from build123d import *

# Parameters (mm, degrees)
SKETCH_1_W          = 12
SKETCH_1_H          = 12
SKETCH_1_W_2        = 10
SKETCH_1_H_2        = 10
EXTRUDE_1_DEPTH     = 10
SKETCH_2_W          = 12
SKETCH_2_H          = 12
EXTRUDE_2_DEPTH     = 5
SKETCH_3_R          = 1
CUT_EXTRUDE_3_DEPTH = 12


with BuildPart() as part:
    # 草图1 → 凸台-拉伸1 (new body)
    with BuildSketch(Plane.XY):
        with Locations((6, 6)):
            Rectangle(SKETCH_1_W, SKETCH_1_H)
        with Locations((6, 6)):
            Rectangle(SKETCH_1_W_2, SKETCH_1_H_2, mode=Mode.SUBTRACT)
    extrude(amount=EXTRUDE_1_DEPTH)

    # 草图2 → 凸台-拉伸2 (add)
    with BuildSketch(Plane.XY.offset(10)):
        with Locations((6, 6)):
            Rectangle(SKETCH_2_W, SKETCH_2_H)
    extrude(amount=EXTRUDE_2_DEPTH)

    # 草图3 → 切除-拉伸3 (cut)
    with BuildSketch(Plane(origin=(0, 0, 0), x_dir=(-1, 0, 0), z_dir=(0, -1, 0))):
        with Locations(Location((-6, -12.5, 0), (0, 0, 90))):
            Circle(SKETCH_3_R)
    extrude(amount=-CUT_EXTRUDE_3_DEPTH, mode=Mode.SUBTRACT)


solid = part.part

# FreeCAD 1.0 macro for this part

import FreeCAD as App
import Part
import Sketcher

V = App.Vector

doc = App.newDocument("Part")
body = doc.addObject("PartDesign::Body", "Body")

# Sketch on XY plane
sketch1 = body.newObject("Sketcher::SketchObject", "Sketch")
sketch1.AttachmentSupport = (doc.getObject("XY_Plane"), [""])
sketch1.MapMode = "FlatFace"
sketch1.addGeometry(Part.LineSegment(V(0, 12, 0), V(0, 0, 0)), False)
sketch1.addGeometry(Part.LineSegment(V(0, 0, 0), V(12, 0, 0)), False)
sketch1.addGeometry(Part.LineSegment(V(12, 0, 0), V(12, 12, 0)), False)
sketch1.addGeometry(Part.LineSegment(V(12, 12, 0), V(0, 12, 0)), False)
sketch1.addGeometry(Part.LineSegment(V(11, 1, 0), V(1, 1, 0)), False)
sketch1.addGeometry(Part.LineSegment(V(1, 1, 0), V(1, 11, 0)), False)
sketch1.addGeometry(Part.LineSegment(V(1, 11, 0), V(11, 11, 0)), False)
sketch1.addGeometry(Part.LineSegment(V(11, 11, 0), V(11, 1, 0)), False)
sketch1.addConstraint(Sketcher.Constraint("Coincident", 0, 2, 1, 1))
sketch1.addConstraint(Sketcher.Constraint("Coincident", 1, 2, 2, 1))
sketch1.addConstraint(Sketcher.Constraint("Coincident", 2, 2, 3, 1))
sketch1.addConstraint(Sketcher.Constraint("Coincident", 3, 2, 0, 1))
sketch1.addConstraint(Sketcher.Constraint("Coincident", 4, 2, 5, 1))
sketch1.addConstraint(Sketcher.Constraint("Coincident", 5, 2, 6, 1))
sketch1.addConstraint(Sketcher.Constraint("Coincident", 6, 2, 7, 1))
sketch1.addConstraint(Sketcher.Constraint("Coincident", 7, 2, 4, 1))
sketch1.addConstraint(Sketcher.Constraint("Vertical", 0))
sketch1.addConstraint(Sketcher.Constraint("Horizontal", 1))
sketch1.addConstraint(Sketcher.Constraint("Vertical", 2))
sketch1.addConstraint(Sketcher.Constraint("Horizontal", 3))
sketch1.addConstraint(Sketcher.Constraint("Horizontal", 4))
sketch1.addConstraint(Sketcher.Constraint("Vertical", 5))
sketch1.addConstraint(Sketcher.Constraint("Horizontal", 6))
sketch1.addConstraint(Sketcher.Constraint("Vertical", 7))
sketch1.addConstraint(Sketcher.Constraint("Coincident", 0, 2, -1, 1))
sketch1.addConstraint(Sketcher.Constraint("Equal", 3, 0))
sketch1.addConstraint(Sketcher.Constraint("Equal", 6, 5))
sketch1.addConstraint(Sketcher.Constraint("DistanceX", 1, 1, 1, 2, 12.0))
sketch1.addConstraint(Sketcher.Constraint("DistanceX", 4, 2, 4, 1, 10.0))
sketch1.addConstraint(Sketcher.Constraint("DistanceX", -1, 1, 4, 2, 1.0))
sketch1.addConstraint(Sketcher.Constraint("DistanceY", -1, 1, 4, 2, 1.0))
pad1 = body.newObject("PartDesign::Pad", "Pad")
pad1.Profile = sketch1
pad1.Length = 10

# Sketch on XY plane
sketch2 = body.newObject("Sketcher::SketchObject", "Sketch001")
sketch2.AttachmentSupport = (doc.getObject("XY_Plane"), [""])
sketch2.MapMode = "FlatFace"
sketch2.AttachmentOffset = App.Placement(V(0, 0, 10), App.Rotation())
sketch2.addGeometry(Part.LineSegment(V(0, 12, 0), V(0, 0, 0)), False)
sketch2.addGeometry(Part.LineSegment(V(0, 0, 0), V(12, 0, 0)), False)
sketch2.addGeometry(Part.LineSegment(V(12, 0, 0), V(12, 12, 0)), False)
sketch2.addGeometry(Part.LineSegment(V(12, 12, 0), V(0, 12, 0)), False)
sketch2.addConstraint(Sketcher.Constraint("Coincident", 0, 2, 1, 1))
sketch2.addConstraint(Sketcher.Constraint("Coincident", 1, 2, 2, 1))
sketch2.addConstraint(Sketcher.Constraint("Coincident", 2, 2, 3, 1))
sketch2.addConstraint(Sketcher.Constraint("Coincident", 3, 2, 0, 1))
sketch2.addConstraint(Sketcher.Constraint("Vertical", 0))
sketch2.addConstraint(Sketcher.Constraint("Horizontal", 1))
sketch2.addConstraint(Sketcher.Constraint("Vertical", 2))
sketch2.addConstraint(Sketcher.Constraint("Horizontal", 3))
sketch2.addConstraint(Sketcher.Constraint("Coincident", 0, 2, -1, 1))
sketch2.addConstraint(Sketcher.Constraint("Equal", 3, 0))
sketch2.addConstraint(Sketcher.Constraint("DistanceX", 1, 1, 1, 2, 12.0))
pad2 = body.newObject("PartDesign::Pad", "Pad001")
pad2.Profile = sketch2
pad2.Length = 5

# Sketch on XZ plane
sketch3 = body.newObject("Sketcher::SketchObject", "Sketch002")
sketch3.AttachmentSupport = (doc.getObject("XZ_Plane"), [""])
sketch3.MapMode = "FlatFace"
sketch3.addGeometry(Part.Circle(V(6, 12.5, 0), V(0, 0, 1), 1), False)
sketch3.addConstraint(Sketcher.Constraint("Diameter", 0, 2.0))
sketch3.addConstraint(Sketcher.Constraint("DistanceX", -1, 1, 0, 3, 6.0))
sketch3.addConstraint(Sketcher.Constraint("DistanceY", -1, 1, 0, 3, 12.5))
pocket1 = body.newObject("PartDesign::Pocket", "Pocket")
pocket1.Profile = sketch3
pocket1.Length = 12

doc.recompute()
